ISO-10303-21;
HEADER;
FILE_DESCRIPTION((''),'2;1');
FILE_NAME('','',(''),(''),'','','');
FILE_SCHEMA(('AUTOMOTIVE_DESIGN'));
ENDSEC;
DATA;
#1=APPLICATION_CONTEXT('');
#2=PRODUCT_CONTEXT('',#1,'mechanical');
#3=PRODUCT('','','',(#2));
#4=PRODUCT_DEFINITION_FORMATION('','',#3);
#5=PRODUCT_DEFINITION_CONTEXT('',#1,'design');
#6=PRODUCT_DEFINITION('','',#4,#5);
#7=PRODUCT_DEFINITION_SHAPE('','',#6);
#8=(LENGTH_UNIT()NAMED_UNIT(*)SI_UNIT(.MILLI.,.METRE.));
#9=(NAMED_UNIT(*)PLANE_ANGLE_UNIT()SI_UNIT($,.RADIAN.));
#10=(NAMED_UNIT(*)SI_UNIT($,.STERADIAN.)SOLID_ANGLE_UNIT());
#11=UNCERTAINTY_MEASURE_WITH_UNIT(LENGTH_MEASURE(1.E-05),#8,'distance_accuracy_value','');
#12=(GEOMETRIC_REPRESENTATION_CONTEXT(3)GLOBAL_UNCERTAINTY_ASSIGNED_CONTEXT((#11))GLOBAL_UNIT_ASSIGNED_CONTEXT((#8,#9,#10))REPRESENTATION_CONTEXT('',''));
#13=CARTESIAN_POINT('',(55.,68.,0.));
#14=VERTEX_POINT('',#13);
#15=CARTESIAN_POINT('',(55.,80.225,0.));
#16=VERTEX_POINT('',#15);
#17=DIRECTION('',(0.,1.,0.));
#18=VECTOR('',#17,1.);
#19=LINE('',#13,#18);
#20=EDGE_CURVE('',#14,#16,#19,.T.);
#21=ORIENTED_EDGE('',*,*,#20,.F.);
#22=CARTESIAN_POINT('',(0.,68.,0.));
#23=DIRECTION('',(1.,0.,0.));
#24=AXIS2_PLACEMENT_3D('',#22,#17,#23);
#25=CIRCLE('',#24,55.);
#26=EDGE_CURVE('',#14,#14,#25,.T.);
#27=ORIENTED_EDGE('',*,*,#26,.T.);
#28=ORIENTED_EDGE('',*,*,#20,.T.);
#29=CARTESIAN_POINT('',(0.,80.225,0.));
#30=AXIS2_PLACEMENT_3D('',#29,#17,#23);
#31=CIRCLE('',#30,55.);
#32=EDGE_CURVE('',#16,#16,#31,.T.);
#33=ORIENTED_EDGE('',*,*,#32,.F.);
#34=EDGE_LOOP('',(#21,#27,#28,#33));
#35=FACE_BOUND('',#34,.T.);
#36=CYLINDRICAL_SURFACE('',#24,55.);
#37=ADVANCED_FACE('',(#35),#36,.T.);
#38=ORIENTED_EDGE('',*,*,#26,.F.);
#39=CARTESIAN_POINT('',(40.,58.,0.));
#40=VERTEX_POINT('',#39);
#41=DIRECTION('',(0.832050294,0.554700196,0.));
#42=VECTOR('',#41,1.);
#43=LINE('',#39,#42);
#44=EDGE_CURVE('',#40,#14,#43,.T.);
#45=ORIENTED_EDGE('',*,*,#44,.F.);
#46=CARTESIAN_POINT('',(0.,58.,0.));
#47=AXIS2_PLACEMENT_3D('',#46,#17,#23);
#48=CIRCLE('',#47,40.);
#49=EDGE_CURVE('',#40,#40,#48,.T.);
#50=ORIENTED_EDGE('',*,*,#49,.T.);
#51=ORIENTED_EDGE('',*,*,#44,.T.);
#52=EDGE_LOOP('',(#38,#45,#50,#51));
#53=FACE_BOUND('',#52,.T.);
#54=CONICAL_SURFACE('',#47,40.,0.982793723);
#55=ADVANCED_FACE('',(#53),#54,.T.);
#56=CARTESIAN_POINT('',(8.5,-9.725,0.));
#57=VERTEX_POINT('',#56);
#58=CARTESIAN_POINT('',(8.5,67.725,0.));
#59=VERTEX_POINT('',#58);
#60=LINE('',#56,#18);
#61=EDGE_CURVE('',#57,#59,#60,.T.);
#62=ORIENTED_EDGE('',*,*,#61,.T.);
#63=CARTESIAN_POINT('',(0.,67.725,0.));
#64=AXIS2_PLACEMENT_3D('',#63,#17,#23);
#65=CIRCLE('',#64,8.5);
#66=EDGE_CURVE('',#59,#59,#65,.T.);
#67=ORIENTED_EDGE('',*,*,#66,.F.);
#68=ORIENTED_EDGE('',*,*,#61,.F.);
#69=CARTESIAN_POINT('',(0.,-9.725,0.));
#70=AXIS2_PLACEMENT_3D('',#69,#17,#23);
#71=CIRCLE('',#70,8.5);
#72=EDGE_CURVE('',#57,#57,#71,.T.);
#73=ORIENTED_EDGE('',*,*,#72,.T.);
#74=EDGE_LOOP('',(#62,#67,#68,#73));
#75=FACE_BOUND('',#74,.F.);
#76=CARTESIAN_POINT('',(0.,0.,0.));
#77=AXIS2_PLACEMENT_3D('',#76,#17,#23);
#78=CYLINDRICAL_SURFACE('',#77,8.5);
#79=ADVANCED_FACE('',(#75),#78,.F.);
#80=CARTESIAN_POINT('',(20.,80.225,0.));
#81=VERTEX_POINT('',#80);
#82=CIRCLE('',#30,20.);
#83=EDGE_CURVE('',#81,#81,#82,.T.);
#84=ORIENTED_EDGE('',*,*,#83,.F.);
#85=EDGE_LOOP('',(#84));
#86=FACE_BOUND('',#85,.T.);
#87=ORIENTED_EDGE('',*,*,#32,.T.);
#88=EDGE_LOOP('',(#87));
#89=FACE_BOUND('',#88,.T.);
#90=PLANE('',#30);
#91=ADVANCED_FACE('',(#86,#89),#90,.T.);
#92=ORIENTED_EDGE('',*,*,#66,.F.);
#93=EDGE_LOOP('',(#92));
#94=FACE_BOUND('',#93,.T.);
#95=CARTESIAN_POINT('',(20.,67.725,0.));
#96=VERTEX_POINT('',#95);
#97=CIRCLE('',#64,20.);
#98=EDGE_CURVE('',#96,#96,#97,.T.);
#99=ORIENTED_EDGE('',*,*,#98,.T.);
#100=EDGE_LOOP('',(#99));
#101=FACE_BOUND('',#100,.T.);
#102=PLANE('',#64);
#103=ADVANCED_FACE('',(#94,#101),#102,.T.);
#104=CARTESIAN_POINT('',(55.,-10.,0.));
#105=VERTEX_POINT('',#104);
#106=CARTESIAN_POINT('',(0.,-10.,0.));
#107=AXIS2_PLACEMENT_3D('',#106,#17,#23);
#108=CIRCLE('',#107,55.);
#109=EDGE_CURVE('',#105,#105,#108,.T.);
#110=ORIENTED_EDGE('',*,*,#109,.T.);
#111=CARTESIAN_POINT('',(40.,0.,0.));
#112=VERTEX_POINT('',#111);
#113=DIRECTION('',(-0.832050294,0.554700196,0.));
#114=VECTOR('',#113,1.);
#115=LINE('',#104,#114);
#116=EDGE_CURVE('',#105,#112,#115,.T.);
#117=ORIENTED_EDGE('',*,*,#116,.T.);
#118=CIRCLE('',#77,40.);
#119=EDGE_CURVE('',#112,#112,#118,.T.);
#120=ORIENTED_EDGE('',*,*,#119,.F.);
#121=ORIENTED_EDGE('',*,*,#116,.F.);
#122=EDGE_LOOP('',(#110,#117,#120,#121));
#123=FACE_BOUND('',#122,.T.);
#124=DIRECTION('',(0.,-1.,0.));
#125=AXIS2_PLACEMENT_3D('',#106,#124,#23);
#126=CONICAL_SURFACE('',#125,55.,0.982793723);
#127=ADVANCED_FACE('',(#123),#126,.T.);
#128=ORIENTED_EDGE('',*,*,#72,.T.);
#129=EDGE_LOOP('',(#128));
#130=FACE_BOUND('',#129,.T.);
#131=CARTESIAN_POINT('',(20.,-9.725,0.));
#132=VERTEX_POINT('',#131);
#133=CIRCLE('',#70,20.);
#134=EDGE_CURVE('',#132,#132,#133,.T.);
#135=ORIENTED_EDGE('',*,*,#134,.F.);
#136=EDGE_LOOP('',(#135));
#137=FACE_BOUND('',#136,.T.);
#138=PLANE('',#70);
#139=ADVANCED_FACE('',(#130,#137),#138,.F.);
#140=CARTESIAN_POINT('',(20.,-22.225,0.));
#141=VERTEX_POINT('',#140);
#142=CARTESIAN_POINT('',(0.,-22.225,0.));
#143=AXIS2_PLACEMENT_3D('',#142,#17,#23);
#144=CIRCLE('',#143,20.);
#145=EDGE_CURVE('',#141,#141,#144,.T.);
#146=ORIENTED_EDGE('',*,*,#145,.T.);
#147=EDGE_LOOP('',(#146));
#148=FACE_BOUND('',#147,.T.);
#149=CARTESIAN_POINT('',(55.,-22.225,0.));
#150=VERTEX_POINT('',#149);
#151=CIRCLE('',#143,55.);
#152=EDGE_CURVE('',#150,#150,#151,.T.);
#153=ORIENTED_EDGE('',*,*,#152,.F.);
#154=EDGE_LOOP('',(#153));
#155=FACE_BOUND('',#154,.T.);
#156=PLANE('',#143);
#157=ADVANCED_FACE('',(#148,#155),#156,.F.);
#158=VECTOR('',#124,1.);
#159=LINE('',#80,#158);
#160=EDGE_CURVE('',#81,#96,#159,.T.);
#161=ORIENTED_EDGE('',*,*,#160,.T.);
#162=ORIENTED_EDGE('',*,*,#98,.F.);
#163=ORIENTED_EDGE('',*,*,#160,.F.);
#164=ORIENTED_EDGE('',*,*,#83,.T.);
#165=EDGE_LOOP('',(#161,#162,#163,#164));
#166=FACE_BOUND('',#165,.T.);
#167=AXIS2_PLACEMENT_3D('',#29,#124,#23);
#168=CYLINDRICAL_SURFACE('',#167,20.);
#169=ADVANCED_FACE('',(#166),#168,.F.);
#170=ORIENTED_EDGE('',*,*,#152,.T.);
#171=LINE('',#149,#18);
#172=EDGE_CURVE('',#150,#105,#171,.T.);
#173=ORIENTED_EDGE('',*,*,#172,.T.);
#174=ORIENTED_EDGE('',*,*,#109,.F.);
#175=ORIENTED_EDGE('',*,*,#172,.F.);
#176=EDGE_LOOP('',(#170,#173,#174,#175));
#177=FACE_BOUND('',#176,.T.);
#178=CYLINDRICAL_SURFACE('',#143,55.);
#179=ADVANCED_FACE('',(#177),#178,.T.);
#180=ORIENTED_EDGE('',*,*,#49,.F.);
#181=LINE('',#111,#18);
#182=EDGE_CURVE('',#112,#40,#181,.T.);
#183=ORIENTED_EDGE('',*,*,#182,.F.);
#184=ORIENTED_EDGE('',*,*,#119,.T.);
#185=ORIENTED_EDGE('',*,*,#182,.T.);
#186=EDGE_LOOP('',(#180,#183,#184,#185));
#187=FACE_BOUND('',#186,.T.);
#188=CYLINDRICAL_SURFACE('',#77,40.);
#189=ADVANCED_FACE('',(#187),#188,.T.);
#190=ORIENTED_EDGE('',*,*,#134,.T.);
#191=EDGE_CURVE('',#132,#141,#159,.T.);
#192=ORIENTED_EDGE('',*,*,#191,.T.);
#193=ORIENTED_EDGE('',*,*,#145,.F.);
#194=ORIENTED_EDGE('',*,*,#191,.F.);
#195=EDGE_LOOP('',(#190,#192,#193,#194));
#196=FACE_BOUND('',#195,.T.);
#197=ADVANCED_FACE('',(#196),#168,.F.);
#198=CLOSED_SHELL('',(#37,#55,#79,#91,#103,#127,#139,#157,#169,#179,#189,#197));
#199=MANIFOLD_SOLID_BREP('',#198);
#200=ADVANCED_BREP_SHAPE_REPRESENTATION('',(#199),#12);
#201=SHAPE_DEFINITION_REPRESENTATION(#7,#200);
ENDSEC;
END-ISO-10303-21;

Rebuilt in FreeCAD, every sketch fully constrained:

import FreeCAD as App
import Part
import Sketcher
Q = App.Units.Quantity


def add_polygon(sketch, points):
    """Adds a closed chain of lines whose ends are joined by coincident constraints."""
    first, n = sketch.GeometryCount, len(points)
    for a, b in zip(points, points[1:] + points[:1]):
        sketch.addGeometry(Part.LineSegment(App.Vector(*a, 0), App.Vector(*b, 0)), False)
    for i in range(n):
        sketch.addConstraint(Sketcher.Constraint("Coincident", first + i, 2, first + (i + 1) % n, 1))

doc = App.newDocument("Part")
body = doc.addObject("PartDesign::Body", "Body")

# Sketch on XY plane
sketch1 = doc.addObject("Sketcher::SketchObject", "Sketch")
body.addObject(sketch1)
sketch1.AttachmentSupport = (doc.XY_Plane, [""])
sketch1.MapMode = "FlatFace"
add_polygon(sketch1, [(8.5, -9.725), (20, -9.725), (20, -22.225), (55, -22.225), (55, -10), (40, 0), (40, 58), (55, 68), (55, 80.225), (20, 80.225), (20, 67.725), (8.5, 67.725)])  # lines 0-11
sketch1.addConstraint([
    Sketcher.Constraint("Horizontal", 0),
    Sketcher.Constraint("Vertical", 1),
    Sketcher.Constraint("Horizontal", 2),
    Sketcher.Constraint("Vertical", 3),
    Sketcher.Constraint("Vertical", 5),
    Sketcher.Constraint("Vertical", 7),
    Sketcher.Constraint("Horizontal", 8),
    Sketcher.Constraint("Vertical", 9),
    Sketcher.Constraint("Horizontal", 10),
    Sketcher.Constraint("Vertical", 11),
    Sketcher.Constraint("PointOnObject", 4, 2, -1),
    Sketcher.Constraint("Vertical", 3, 2, 6, 2),
    Sketcher.Constraint("Vertical", 1, 2, 8, 2),
    Sketcher.Constraint("Equal", 3, 7),
    Sketcher.Constraint("Equal", 1, 9),
    Sketcher.Constraint("Equal", 4, 6),
    Sketcher.Constraint("DistanceX", 2, 1, 2, 2, Q("35 mm")),
    Sketcher.Constraint("DistanceY", 5, 1, 5, 2, Q("58 mm")),
    Sketcher.Constraint("DistanceY", 1, 2, 1, 1, Q("12.5 mm")),
    Sketcher.Constraint("DistanceX", -1, 1, 0, 2, Q("20 mm")),
    Sketcher.Constraint("DistanceY", 3, 2, -1, 1, Q("10 mm")),
    Sketcher.Constraint("DistanceX", -1, 1, 4, 2, Q("40 mm")),
    Sketcher.Constraint("DistanceY", 11, 2, 11, 1, Q("77.45 mm")),
    Sketcher.Constraint("DistanceX", -1, 1, 10, 2, Q("8.5 mm")),
])
revolution = doc.addObject("PartDesign::Revolution", "Revolution")
body.addObject(revolution)
revolution.Profile = sketch1
revolution.ReferenceAxis = (sketch1, ["V_Axis"])
revolution.Angle = 360

doc.recompute()
